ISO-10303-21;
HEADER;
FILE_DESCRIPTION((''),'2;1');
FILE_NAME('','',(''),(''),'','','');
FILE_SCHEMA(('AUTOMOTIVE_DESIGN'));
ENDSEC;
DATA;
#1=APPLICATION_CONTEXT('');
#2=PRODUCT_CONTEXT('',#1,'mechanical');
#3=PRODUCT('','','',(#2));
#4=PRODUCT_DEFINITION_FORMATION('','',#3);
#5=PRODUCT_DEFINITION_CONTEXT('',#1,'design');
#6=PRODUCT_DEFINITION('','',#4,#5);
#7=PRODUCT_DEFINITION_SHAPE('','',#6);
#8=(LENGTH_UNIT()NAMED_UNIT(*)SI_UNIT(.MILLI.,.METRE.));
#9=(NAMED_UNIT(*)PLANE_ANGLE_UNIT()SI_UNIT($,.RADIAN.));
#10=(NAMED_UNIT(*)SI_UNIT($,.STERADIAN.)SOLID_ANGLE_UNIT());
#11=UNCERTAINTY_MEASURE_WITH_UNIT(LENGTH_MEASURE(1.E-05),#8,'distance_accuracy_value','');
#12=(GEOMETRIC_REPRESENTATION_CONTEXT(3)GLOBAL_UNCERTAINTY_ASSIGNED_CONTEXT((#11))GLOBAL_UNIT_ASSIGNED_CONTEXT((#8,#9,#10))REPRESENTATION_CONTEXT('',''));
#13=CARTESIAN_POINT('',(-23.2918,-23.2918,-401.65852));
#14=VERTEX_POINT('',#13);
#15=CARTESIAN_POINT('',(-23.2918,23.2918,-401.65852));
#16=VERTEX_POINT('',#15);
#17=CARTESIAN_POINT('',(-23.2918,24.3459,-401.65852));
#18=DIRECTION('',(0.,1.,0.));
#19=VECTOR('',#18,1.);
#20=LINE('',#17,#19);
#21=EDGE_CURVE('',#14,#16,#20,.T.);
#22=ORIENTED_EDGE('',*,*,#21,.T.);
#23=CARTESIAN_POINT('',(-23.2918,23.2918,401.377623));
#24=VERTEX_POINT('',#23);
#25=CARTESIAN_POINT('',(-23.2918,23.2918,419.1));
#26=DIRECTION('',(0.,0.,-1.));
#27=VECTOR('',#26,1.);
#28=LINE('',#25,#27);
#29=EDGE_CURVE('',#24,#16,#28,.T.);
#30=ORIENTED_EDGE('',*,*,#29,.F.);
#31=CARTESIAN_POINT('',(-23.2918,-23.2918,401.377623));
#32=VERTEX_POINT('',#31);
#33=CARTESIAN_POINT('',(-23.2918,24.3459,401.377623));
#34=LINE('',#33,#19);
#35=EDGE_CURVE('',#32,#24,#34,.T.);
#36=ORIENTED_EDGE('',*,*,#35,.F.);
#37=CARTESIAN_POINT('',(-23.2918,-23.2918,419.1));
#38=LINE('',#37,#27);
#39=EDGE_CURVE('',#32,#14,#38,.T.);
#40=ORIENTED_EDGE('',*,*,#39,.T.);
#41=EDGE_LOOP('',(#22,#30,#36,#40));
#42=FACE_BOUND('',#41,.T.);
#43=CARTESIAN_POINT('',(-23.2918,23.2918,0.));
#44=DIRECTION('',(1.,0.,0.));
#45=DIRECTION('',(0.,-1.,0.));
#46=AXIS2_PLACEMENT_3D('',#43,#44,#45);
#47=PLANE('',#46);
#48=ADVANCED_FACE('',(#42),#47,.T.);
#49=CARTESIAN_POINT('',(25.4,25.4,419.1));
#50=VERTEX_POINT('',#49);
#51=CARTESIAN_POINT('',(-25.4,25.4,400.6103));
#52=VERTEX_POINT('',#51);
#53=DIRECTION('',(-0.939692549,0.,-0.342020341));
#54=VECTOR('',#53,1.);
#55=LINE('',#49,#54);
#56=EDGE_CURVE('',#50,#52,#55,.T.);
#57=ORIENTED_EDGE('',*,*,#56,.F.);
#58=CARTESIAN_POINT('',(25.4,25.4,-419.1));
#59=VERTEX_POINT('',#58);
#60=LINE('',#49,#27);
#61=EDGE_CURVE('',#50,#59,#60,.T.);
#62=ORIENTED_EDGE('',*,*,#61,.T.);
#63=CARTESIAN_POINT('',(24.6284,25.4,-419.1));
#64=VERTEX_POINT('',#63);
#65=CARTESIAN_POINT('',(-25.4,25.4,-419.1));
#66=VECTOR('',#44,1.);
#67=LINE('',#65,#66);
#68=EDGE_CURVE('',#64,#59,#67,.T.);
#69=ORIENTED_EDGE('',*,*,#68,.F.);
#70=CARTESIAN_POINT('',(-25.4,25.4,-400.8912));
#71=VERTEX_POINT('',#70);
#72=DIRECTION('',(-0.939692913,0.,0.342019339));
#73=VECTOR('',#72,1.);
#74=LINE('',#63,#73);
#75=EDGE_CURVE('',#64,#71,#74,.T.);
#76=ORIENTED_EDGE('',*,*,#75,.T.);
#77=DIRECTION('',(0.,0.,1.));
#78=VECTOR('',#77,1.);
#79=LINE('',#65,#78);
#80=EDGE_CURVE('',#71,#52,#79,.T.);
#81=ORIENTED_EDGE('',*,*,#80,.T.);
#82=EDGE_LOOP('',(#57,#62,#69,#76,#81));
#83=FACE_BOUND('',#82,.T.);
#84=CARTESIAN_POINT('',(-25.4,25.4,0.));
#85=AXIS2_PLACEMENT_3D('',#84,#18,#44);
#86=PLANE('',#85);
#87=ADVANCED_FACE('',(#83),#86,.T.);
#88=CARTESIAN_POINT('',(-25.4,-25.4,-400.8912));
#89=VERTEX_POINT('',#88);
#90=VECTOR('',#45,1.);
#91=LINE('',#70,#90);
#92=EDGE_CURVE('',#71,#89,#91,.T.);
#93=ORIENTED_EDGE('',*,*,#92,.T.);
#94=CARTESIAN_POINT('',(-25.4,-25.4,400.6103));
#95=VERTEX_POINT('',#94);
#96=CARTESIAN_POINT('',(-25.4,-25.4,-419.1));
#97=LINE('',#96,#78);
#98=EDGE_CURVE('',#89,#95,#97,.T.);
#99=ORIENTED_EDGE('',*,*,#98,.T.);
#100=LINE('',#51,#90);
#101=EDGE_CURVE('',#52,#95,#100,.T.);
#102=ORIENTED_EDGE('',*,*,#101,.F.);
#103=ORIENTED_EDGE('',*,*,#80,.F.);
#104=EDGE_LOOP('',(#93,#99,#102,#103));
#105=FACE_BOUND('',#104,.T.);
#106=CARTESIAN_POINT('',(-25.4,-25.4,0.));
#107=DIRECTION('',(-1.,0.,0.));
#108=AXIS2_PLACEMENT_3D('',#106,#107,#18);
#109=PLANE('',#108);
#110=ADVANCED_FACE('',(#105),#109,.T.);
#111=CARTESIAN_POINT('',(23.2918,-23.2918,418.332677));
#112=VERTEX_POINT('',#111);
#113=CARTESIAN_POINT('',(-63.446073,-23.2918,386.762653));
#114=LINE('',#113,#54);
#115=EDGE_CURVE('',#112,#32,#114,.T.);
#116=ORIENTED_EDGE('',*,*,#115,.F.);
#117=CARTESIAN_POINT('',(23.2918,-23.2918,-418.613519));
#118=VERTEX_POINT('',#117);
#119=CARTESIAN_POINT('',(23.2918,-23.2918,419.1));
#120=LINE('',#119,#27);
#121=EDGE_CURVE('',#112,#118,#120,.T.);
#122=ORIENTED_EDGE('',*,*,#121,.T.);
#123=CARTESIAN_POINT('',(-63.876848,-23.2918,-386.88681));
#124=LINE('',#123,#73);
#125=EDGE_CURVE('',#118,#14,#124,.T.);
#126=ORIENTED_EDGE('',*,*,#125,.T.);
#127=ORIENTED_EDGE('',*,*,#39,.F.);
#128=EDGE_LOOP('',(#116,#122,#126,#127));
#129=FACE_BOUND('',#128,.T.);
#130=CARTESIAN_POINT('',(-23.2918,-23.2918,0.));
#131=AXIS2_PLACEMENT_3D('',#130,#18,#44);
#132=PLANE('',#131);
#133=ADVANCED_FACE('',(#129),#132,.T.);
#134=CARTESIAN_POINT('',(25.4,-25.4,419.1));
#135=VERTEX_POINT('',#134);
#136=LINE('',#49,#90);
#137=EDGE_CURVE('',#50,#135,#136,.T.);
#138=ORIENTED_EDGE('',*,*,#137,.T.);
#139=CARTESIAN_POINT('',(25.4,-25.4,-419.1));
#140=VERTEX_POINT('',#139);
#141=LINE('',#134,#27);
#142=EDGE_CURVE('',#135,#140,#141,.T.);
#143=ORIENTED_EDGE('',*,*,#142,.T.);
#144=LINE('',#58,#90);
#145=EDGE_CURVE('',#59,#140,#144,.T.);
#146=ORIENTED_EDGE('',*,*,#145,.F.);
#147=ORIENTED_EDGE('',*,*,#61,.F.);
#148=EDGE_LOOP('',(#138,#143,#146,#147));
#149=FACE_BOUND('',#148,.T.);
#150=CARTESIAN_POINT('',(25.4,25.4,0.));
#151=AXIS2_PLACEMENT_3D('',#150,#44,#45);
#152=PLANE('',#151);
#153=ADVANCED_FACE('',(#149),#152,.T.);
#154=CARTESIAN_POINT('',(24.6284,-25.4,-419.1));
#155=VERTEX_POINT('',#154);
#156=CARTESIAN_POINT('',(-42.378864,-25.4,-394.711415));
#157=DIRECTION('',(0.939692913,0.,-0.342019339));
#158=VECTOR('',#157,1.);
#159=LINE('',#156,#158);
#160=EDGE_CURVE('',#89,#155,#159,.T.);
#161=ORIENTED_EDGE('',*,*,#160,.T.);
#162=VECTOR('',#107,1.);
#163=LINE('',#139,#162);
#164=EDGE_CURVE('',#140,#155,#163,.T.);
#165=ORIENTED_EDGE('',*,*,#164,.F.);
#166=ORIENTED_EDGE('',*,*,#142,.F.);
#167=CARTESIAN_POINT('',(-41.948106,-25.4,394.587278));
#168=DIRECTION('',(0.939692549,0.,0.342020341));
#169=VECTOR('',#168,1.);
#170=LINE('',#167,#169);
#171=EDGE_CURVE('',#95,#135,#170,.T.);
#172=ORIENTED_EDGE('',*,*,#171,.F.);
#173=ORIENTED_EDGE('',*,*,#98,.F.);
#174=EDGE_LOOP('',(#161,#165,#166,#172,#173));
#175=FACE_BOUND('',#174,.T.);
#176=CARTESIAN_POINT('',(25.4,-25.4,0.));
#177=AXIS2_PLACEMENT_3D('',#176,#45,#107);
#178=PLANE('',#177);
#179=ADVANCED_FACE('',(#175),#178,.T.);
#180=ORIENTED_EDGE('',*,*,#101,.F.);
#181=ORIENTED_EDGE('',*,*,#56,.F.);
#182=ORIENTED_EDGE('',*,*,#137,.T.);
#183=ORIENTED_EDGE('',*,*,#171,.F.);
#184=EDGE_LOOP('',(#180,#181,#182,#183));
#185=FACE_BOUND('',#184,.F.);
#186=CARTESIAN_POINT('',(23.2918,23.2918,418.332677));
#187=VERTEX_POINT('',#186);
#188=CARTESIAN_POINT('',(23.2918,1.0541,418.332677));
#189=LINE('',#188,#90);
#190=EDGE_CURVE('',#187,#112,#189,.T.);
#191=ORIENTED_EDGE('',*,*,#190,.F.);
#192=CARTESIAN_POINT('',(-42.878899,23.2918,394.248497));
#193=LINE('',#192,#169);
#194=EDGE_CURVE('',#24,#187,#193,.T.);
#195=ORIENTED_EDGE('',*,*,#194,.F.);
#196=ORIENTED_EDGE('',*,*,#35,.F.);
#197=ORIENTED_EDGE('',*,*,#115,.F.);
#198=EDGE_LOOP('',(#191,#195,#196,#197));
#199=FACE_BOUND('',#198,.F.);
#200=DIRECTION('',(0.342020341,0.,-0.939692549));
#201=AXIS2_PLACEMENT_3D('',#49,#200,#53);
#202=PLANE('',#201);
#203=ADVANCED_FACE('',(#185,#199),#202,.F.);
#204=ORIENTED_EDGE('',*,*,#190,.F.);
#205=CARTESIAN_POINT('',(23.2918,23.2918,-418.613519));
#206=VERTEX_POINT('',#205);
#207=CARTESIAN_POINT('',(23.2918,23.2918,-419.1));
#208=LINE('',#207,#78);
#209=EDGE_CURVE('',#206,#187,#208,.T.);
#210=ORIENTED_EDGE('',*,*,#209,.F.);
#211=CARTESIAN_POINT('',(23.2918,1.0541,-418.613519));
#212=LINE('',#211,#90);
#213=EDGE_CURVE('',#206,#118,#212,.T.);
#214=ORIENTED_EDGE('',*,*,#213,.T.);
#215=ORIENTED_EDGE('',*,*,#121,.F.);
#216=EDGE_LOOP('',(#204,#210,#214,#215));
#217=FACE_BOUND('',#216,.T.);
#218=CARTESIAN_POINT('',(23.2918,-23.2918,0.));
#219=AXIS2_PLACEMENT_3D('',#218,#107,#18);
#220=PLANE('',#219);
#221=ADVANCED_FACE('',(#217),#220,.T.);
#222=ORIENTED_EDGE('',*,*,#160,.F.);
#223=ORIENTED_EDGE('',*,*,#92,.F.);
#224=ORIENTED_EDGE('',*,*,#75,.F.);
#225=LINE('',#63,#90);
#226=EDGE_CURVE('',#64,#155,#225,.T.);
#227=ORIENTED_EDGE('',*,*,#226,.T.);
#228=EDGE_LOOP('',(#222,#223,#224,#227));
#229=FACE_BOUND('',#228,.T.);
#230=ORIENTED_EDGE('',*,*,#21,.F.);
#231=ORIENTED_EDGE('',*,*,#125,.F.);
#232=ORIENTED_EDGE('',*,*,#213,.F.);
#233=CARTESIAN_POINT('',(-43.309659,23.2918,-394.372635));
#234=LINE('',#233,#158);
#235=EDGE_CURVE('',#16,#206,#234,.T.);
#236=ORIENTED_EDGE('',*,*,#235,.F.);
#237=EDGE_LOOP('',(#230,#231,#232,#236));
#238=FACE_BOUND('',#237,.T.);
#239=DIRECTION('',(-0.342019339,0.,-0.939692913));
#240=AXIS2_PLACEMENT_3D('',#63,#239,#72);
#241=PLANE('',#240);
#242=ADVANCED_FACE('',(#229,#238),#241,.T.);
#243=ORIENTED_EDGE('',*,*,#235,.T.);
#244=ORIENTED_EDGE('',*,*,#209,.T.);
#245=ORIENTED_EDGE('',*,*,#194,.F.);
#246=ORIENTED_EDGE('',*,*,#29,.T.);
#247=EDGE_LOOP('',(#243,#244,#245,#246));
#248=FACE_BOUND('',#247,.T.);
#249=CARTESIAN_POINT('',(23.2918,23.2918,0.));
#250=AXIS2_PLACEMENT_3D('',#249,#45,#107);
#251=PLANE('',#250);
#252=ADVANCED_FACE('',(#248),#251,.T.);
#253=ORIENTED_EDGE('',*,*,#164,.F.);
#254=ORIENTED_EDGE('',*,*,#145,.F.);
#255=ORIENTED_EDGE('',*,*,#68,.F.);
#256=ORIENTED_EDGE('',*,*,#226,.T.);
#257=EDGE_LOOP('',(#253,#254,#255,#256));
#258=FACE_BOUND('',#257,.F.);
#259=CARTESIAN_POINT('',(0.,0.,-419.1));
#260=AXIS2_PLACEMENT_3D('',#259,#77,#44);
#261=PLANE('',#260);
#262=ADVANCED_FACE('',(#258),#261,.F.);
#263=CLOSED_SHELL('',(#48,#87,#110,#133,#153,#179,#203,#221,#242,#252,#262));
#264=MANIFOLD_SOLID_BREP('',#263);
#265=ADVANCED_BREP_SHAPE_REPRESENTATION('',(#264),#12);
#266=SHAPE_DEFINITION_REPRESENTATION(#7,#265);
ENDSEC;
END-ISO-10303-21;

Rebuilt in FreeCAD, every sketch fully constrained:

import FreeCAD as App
import Part
import Sketcher
from FreeCAD import Vector
Q = App.Units.Quantity

doc = App.newDocument("Part")
body = doc.addObject("PartDesign::Body", "Body")

sketch1 = doc.addObject("Sketcher::SketchObject", "Sketch")
body.addObject(sketch1)
sketch1.AttachmentSupport = (doc.XY_Plane, [""])
sketch1.MapMode = "FlatFace"
sketch1.addGeometry(Part.LineSegment(Vector(25, 25, 0), Vector(-25, 25, 0)), False)
sketch1.addGeometry(Part.LineSegment(Vector(-25, 25, 0), Vector(-25, -25, 0)), False)
sketch1.addGeometry(Part.LineSegment(Vector(-25, -25, 0), Vector(25, -25, 0)), False)
sketch1.addGeometry(Part.LineSegment(Vector(25, -25, 0), Vector(25, 25, 0)), False)
sketch1.addGeometry(Part.LineSegment(Vector(-23, 23, 0), Vector(23, 23, 0)), False)
sketch1.addGeometry(Part.LineSegment(Vector(23, 23, 0), Vector(23, -23, 0)), False)
sketch1.addGeometry(Part.LineSegment(Vector(23, -23, 0), Vector(-23, -23, 0)), False)
sketch1.addGeometry(Part.LineSegment(Vector(-23, -23, 0), Vector(-23, 23, 0)), False)
sketch1.addConstraint(Sketcher.Constraint("Coincident", 0, 2, 1, 1))
sketch1.addConstraint(Sketcher.Constraint("Coincident", 1, 2, 2, 1))
sketch1.addConstraint(Sketcher.Constraint("Coincident", 2, 2, 3, 1))
sketch1.addConstraint(Sketcher.Constraint("Coincident", 3, 2, 0, 1))
sketch1.addConstraint(Sketcher.Constraint("Coincident", 4, 2, 5, 1))
sketch1.addConstraint(Sketcher.Constraint("Coincident", 5, 2, 6, 1))
sketch1.addConstraint(Sketcher.Constraint("Coincident", 6, 2, 7, 1))
sketch1.addConstraint(Sketcher.Constraint("Coincident", 7, 2, 4, 1))
sketch1.addConstraint(Sketcher.Constraint("Horizontal", 0))
sketch1.addConstraint(Sketcher.Constraint("Vertical", 1))
sketch1.addConstraint(Sketcher.Constraint("Horizontal", 2))
sketch1.addConstraint(Sketcher.Constraint("Vertical", 3))
sketch1.addConstraint(Sketcher.Constraint("Horizontal", 4))
sketch1.addConstraint(Sketcher.Constraint("Vertical", 5))
sketch1.addConstraint(Sketcher.Constraint("Horizontal", 6))
sketch1.addConstraint(Sketcher.Constraint("Vertical", 7))
sketch1.addConstraint(Sketcher.Constraint("Symmetric", 0, 2, 2, 2, -1, 1))
sketch1.addConstraint(Sketcher.Constraint("Symmetric", 4, 2, 6, 2, -1, 1))
sketch1.addConstraint(Sketcher.Constraint("Equal", 2, 1))
sketch1.addConstraint(Sketcher.Constraint("Equal", 6, 5))
sketch1.addConstraint(Sketcher.Constraint("DistanceX", 0, 2, 0, 1, Q("2 in")))
sketch1.addConstraint(Sketcher.Constraint("DistanceX", 4, 2, 3, 2, Q("0.083 in")))
pad1 = doc.addObject("PartDesign::Pad", "Pad")
body.addObject(pad1)
pad1.Profile = sketch1
pad1.Length = Q("33 in")
pad1.Midplane = True

sketch2 = doc.addObject("Sketcher::SketchObject", "Sketch001")
body.addObject(sketch2)
sketch2.AttachmentSupport = (doc.XZ_Plane, [""])
sketch2.MapMode = "FlatFace"
sketch2.AttachmentOffset = App.Placement(Vector(0, 0, -1 * 25.4), App.Rotation())
sketch2.addGeometry(Part.LineSegment(Vector(-25, 419, 0), Vector(25, 419, 0)), False)
sketch2.addGeometry(Part.LineSegment(Vector(25, 419, 0), Vector(-25, 401, 0)), False)
sketch2.addGeometry(Part.LineSegment(Vector(-25, 401, 0), Vector(-25, 419, 0)), False)
sketch2.addGeometry(Part.LineSegment(Vector(-25, -419, 0), Vector(-25, -401, 0)), False)
sketch2.addGeometry(Part.LineSegment(Vector(-25, -401, 0), Vector(25, -419, 0)), False)
sketch2.addGeometry(Part.LineSegment(Vector(25, -419, 0), Vector(-25, -419, 0)), False)
sketch2.addConstraint(Sketcher.Constraint("Coincident", 0, 2, 1, 1))
sketch2.addConstraint(Sketcher.Constraint("Coincident", 1, 2, 2, 1))
sketch2.addConstraint(Sketcher.Constraint("Coincident", 2, 2, 0, 1))
sketch2.addConstraint(Sketcher.Constraint("Coincident", 3, 2, 4, 1))
sketch2.addConstraint(Sketcher.Constraint("Coincident", 4, 2, 5, 1))
sketch2.addConstraint(Sketcher.Constraint("Coincident", 5, 2, 3, 1))
sketch2.addConstraint(Sketcher.Constraint("Horizontal", 0))
sketch2.addConstraint(Sketcher.Constraint("Vertical", 2))
sketch2.addConstraint(Sketcher.Constraint("Vertical", 3))
sketch2.addConstraint(Sketcher.Constraint("Horizontal", 5))
sketch2.addConstraint(Sketcher.Constraint("Symmetric", 0, 2, 5, 2, -1, 1))
sketch2.addConstraint(Sketcher.Constraint("Vertical", 2, 2, 3, 2))
sketch2.addConstraint(Sketcher.Constraint("Angle", 1, Q("-160 deg")))
sketch2.addConstraint(Sketcher.Constraint("DistanceX", 0, 1, 0, 2, Q("2 in")))
sketch2.addConstraint(Sketcher.Constraint("Angle", 4, Q("-20 deg")))
sketch2.addConstraint(Sketcher.Constraint("DistanceY", 4, 2, 0, 2, Q("33 in")))
sketch2.addConstraint(Sketcher.Constraint("DistanceX", 5, 2, 5, 1, Q("50.0284 mm")))
pocket1 = doc.addObject("PartDesign::Pocket", "Pocket")
body.addObject(pocket1)
pocket1.Profile = sketch2
pocket1.Type = "ThroughAll"
pocket1.Reversed = True

doc.recompute()
